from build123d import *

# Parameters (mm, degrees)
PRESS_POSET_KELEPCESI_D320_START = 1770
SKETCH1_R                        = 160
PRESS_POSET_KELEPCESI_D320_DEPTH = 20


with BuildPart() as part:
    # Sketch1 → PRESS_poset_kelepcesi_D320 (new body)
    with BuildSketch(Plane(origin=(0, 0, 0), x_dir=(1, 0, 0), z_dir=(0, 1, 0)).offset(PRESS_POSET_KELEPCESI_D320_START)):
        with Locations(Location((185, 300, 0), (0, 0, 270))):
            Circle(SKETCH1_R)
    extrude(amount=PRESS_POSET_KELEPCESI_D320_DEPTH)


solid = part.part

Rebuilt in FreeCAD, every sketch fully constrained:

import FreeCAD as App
import Part
import Sketcher
Q = App.Units.Quantity

doc = App.newDocument("Part")
body = doc.addObject("PartDesign::Body", "Body")

# Sketch on XZ plane
sketch1 = body.newObject("Sketcher::SketchObject", "Sketch")
sketch1.AttachmentSupport = (doc.getObject("XZ_Plane"), [""])
sketch1.MapMode = "FlatFace"
sketch1.AttachmentOffset = App.Placement(App.Vector(0, 0, -1770), App.Rotation())
sketch1.addGeometry(Part.Circle(App.Vector(185, -300, 0), App.Vector(0, 0, 1), 160), False)
sketch1.addConstraint(Sketcher.Constraint("Diameter", 0, Q("320 mm")))
sketch1.addConstraint(Sketcher.Constraint("DistanceX", -1, 1, 0, 3, Q("185 mm")))
sketch1.addConstraint(Sketcher.Constraint("DistanceY", 0, 3, -1, 1, Q("300 mm")))
pad1 = body.newObject("PartDesign::Pad", "Pad")
pad1.Profile = sketch1
pad1.Length = 20
pad1.Reversed = True

doc.recompute()
